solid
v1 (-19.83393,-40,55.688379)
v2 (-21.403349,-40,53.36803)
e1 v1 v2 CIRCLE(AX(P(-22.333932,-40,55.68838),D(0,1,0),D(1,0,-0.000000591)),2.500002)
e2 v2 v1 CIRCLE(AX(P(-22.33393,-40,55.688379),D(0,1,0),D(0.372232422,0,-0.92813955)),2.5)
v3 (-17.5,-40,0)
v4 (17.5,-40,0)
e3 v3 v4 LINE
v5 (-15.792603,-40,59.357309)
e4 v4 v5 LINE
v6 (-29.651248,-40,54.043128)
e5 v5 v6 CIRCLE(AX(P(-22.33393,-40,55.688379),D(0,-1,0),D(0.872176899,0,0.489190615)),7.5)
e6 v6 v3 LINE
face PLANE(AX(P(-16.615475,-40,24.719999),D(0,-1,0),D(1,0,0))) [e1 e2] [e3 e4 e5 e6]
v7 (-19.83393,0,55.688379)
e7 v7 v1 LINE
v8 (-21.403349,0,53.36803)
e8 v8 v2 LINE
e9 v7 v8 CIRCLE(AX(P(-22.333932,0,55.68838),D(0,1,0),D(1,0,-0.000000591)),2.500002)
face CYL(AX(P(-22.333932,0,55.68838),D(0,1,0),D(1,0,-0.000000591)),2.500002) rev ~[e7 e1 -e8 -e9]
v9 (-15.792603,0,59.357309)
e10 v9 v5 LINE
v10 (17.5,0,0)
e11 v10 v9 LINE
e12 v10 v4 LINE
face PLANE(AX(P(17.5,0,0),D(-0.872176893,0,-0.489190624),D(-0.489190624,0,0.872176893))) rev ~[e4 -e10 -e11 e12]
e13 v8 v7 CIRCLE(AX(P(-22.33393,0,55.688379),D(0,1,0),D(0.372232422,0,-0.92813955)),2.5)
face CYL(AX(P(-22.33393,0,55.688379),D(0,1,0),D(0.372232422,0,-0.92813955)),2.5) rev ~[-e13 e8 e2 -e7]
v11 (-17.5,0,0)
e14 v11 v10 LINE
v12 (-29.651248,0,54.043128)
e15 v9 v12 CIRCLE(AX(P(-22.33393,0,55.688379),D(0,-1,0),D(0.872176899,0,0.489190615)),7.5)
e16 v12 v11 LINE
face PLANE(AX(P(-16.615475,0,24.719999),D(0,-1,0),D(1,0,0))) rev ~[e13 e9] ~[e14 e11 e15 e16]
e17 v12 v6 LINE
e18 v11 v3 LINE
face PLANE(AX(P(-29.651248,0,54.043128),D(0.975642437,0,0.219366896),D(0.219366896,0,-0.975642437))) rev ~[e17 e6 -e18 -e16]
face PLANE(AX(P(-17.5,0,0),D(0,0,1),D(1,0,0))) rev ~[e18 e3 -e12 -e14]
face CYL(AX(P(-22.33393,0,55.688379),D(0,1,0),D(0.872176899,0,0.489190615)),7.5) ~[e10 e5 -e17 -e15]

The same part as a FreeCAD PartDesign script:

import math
import FreeCAD as App
import Part
import Sketcher

V = App.Vector

doc = App.newDocument("Part")
body = doc.addObject("PartDesign::Body", "Body")

# Sketch on XZ plane
sketch1 = doc.addObject("Sketcher::SketchObject", "Sketch")
body.addObject(sketch1)
sketch1.AttachmentSupport = (doc.XZ_Plane, [""])
sketch1.MapMode = "FlatFace"
sketch1.addGeometry(Part.LineSegment(V(-29.7, 54, 0), V(-17.5, 0, 0)), False)
sketch1.addGeometry(Part.LineSegment(V(-17.5, 0, 0), V(17.5, 0, 0)), False)
sketch1.addGeometry(Part.LineSegment(V(17.5, 0, 0), V(-15.8, 59.4, 0)), False)
sketch1.addGeometry(Part.ArcOfCircle(Part.Circle(V(-22.3, 55.7, 0), V(0, 0, 1), 7.5), math.radians(29), math.radians(193)), False)
sketch1.addGeometry(Part.ArcOfCircle(Part.Circle(V(-22.3, 55.7, 0), V(0, 0, 1), 2.5), math.radians(0), math.radians(292)), False)
sketch1.addGeometry(Part.ArcOfCircle(Part.Circle(V(-22.3, 55.7, 0), V(0, 0, 1), 2.5), math.radians(-68), math.radians(0)), False)
sketch1.addConstraint(Sketcher.Constraint("Coincident", 0, 2, 1, 1))
sketch1.addConstraint(Sketcher.Constraint("Coincident", 1, 2, 2, 1))
sketch1.addConstraint(Sketcher.Constraint("Tangent", 2, 2, 3, 1))
sketch1.addConstraint(Sketcher.Constraint("Tangent", 3, 2, 0, 1))
sketch1.addConstraint(Sketcher.Constraint("Tangent", 4, 1, 5, 2))
sketch1.addConstraint(Sketcher.Constraint("Coincident", 5, 1, 4, 2))
sketch1.addConstraint(Sketcher.Constraint("Horizontal", 1))
sketch1.addConstraint(Sketcher.Constraint("Coincident", 4, 3, 3, 3))
sketch1.addConstraint(Sketcher.Constraint("Symmetric", 0, 2, 1, 2, -1, 1))
sketch1.addConstraint(Sketcher.Constraint("Horizontal", 5, 3, 4, 1))
sketch1.addConstraint(Sketcher.Constraint("Radius", 3, 7.5))
sketch1.addConstraint(Sketcher.Constraint("Radius", 4, 2.5))
sketch1.addConstraint(Sketcher.Constraint("DistanceX", 1, 1, 1, 2, 35.0))
sketch1.addConstraint(Sketcher.Constraint("Distance", 0, 55.392351))
sketch1.addConstraint(Sketcher.Constraint("DistanceX", 3, 3, -1, 1, 22.33393))
sketch1.addConstraint(Sketcher.Constraint("DistanceX", 5, 1, -1, 1, 21.403349))
pad1 = doc.addObject("PartDesign::Pad", "Pad")
body.addObject(pad1)
pad1.Profile = sketch1
pad1.Length = 40

doc.recompute()
